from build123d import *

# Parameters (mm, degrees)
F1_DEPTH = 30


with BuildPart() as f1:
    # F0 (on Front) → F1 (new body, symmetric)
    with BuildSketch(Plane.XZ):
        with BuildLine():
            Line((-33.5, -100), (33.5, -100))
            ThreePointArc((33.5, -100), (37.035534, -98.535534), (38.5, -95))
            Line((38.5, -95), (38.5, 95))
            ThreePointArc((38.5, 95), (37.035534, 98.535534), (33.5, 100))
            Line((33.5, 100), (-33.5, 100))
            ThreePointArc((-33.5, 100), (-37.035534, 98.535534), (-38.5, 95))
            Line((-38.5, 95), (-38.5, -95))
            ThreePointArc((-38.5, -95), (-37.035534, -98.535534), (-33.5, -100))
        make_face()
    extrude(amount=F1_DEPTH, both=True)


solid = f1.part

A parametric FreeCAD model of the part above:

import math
import FreeCAD as App
import Part
import Sketcher
from FreeCAD import Vector

doc = App.newDocument("Part")
body = doc.addObject("PartDesign::Body", "Body")

# Sketch on XZ plane
sketch1 = body.newObject("Sketcher::SketchObject", "Sketch")
sketch1.AttachmentSupport = (doc.getObject("XZ_Plane"), [""])
sketch1.MapMode = "FlatFace"
sketch1.addGeometry(Part.LineSegment(Vector(-33.5, -100, 0), Vector(33.5, -100, 0)), False)
sketch1.addGeometry(Part.ArcOfCircle(Part.Circle(Vector(33.5, -95, 0), Vector(0, 0, 1), 5), math.radians(-90), math.radians(0)), False)
sketch1.addGeometry(Part.LineSegment(Vector(38.5, -95, 0), Vector(38.5, 95, 0)), False)
sketch1.addGeometry(Part.ArcOfCircle(Part.Circle(Vector(33.5, 95, 0), Vector(0, 0, 1), 5), math.radians(0), math.radians(90)), False)
sketch1.addGeometry(Part.LineSegment(Vector(33.5, 100, 0), Vector(-33.5, 100, 0)), False)
sketch1.addGeometry(Part.ArcOfCircle(Part.Circle(Vector(-33.5, 95, 0), Vector(0, 0, 1), 5), math.radians(90), math.radians(180)), False)
sketch1.addGeometry(Part.LineSegment(Vector(-38.5, 95, 0), Vector(-38.5, -95, 0)), False)
sketch1.addGeometry(Part.ArcOfCircle(Part.Circle(Vector(-33.5, -95, 0), Vector(0, 0, 1), 5), math.radians(180), math.radians(270)), False)
sketch1.addConstraint(Sketcher.Constraint("Tangent", 0, 2, 1, 1))
sketch1.addConstraint(Sketcher.Constraint("Tangent", 1, 2, 2, 1))
sketch1.addConstraint(Sketcher.Constraint("Tangent", 2, 2, 3, 1))
sketch1.addConstraint(Sketcher.Constraint("Tangent", 3, 2, 4, 1))
sketch1.addConstraint(Sketcher.Constraint("Tangent", 4, 2, 5, 1))
sketch1.addConstraint(Sketcher.Constraint("Tangent", 5, 2, 6, 1))
sketch1.addConstraint(Sketcher.Constraint("Tangent", 6, 2, 7, 1))
sketch1.addConstraint(Sketcher.Constraint("Tangent", 7, 2, 0, 1))
sketch1.addConstraint(Sketcher.Constraint("Horizontal", 0))
sketch1.addConstraint(Sketcher.Constraint("Vertical", 2))
sketch1.addConstraint(Sketcher.Constraint("Horizontal", 4))
sketch1.addConstraint(Sketcher.Constraint("Vertical", 6))
sketch1.addConstraint(Sketcher.Constraint("Equal", 1, 3))
sketch1.addConstraint(Sketcher.Constraint("Equal", 3, 5))
sketch1.addConstraint(Sketcher.Constraint("Equal", 5, 7))
sketch1.addConstraint(Sketcher.Constraint("Symmetric", 1, 3, 5, 3, -1, 1))
sketch1.addConstraint(Sketcher.Constraint("Radius", 1, 5.0))
sketch1.addConstraint(Sketcher.Constraint("DistanceX", 0, 1, 0, 2, 67.0))
sketch1.addConstraint(Sketcher.Constraint("DistanceY", 2, 1, 2, 2, 190.0))
pad1 = body.newObject("PartDesign::Pad", "Pad")
pad1.Profile = sketch1
pad1.Length = 60
pad1.Midplane = True

doc.recompute()
